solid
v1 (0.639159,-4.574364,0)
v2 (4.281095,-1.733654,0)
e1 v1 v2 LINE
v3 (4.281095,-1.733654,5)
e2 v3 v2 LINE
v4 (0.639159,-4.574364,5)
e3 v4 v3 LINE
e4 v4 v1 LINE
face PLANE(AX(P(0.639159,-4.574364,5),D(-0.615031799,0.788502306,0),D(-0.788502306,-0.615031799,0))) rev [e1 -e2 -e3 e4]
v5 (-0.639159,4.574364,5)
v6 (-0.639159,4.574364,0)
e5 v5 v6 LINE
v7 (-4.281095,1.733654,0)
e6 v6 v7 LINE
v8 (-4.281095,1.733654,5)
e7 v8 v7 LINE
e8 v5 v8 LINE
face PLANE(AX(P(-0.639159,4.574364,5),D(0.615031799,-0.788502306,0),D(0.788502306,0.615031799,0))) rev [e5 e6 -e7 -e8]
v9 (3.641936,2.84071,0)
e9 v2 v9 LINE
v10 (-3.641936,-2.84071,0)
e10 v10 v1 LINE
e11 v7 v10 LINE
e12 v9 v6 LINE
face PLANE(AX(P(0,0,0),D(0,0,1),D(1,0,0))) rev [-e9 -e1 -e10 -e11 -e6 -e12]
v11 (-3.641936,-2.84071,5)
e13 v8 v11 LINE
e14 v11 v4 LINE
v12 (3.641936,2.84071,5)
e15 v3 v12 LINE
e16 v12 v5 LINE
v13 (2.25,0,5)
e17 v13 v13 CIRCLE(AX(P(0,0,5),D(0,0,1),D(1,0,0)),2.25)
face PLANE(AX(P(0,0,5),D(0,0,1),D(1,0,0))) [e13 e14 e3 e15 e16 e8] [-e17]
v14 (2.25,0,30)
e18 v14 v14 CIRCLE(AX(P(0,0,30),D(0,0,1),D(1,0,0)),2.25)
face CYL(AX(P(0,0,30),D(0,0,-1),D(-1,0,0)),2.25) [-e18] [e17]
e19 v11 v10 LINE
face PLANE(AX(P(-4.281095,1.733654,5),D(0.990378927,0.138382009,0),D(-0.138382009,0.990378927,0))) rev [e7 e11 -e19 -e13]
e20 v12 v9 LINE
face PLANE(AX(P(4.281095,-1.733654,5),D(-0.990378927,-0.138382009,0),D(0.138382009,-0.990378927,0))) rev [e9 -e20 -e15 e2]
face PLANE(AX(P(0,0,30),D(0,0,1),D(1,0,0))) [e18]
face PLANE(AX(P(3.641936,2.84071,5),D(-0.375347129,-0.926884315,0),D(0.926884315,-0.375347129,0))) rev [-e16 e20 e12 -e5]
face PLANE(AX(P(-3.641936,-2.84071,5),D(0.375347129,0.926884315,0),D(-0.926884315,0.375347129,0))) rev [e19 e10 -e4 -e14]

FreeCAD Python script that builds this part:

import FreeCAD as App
import Part
import Sketcher
from FreeCAD import Vector
Q = App.Units.Quantity


def add_polygon(sketch, points):
    """Adds a closed chain of lines whose ends are joined by coincident constraints."""
    first, n = sketch.GeometryCount, len(points)
    for a, b in zip(points, points[1:] + points[:1]):
        sketch.addGeometry(Part.LineSegment(App.Vector(*a, 0), App.Vector(*b, 0)), False)
    for i in range(n):
        sketch.addConstraint(Sketcher.Constraint("Coincident", first + i, 2, first + (i + 1) % n, 1))

doc = App.newDocument("Part")
body = doc.addObject("PartDesign::Body", "Body")

sketch1 = body.newObject("Sketcher::SketchObject", "Sketch")
sketch1.AttachmentSupport = (doc.getObject("XY_Plane"), [""])
sketch1.MapMode = "FlatFace"
add_polygon(sketch1, [(3.6, 2.8), (-0.6, 4.6), (-4.3, 1.7), (-3.6, -2.8), (0.6, -4.6), (4.3, -1.7)])
sketch1.addConstraint([
    Sketcher.Constraint("Symmetric", 0, 2, 3, 2, -1, 1),
    Sketcher.Constraint("Symmetric", 1, 2, 4, 2, -1, 1),
    Sketcher.Constraint("Symmetric", 2, 2, 5, 2, -1, 1),
    Sketcher.Constraint("Equal", 0, 1),
    Sketcher.Constraint("Equal", 1, 2),
    Sketcher.Constraint("DistanceX", 0, 2, -1, 1, Q("0.639159 mm")),
    Sketcher.Constraint("DistanceY", 2, 2, -1, 1, Q("2.84071 mm")),
    Sketcher.Constraint("DistanceY", 1, 2, 0, 2, Q("2.84071 mm")),
    Sketcher.Constraint("DistanceX", 1, 2, 2, 2, Q("0.639159 mm")),
])
pad1 = body.newObject("PartDesign::Pad", "Pad")
pad1.Profile = sketch1
pad1.Length = 5

sketch2 = body.newObject("Sketcher::SketchObject", "Sketch001")
sketch2.AttachmentSupport = (doc.getObject("XY_Plane"), [""])
sketch2.MapMode = "FlatFace"
sketch2.AttachmentOffset = App.Placement(Vector(0, 0, 5), App.Rotation())
sketch2.addGeometry(Part.Circle(Vector(0, 0, 0), Vector(0, 0, 1), 2.2), False)
sketch2.addConstraint([
    Sketcher.Constraint("Coincident", 0, 3, -1, 1),
    Sketcher.Constraint("Diameter", 0, Q("4.5 mm")),
])
pad2 = body.newObject("PartDesign::Pad", "Pad001")
pad2.Profile = sketch2
pad2.Length = 25

doc.recompute()
